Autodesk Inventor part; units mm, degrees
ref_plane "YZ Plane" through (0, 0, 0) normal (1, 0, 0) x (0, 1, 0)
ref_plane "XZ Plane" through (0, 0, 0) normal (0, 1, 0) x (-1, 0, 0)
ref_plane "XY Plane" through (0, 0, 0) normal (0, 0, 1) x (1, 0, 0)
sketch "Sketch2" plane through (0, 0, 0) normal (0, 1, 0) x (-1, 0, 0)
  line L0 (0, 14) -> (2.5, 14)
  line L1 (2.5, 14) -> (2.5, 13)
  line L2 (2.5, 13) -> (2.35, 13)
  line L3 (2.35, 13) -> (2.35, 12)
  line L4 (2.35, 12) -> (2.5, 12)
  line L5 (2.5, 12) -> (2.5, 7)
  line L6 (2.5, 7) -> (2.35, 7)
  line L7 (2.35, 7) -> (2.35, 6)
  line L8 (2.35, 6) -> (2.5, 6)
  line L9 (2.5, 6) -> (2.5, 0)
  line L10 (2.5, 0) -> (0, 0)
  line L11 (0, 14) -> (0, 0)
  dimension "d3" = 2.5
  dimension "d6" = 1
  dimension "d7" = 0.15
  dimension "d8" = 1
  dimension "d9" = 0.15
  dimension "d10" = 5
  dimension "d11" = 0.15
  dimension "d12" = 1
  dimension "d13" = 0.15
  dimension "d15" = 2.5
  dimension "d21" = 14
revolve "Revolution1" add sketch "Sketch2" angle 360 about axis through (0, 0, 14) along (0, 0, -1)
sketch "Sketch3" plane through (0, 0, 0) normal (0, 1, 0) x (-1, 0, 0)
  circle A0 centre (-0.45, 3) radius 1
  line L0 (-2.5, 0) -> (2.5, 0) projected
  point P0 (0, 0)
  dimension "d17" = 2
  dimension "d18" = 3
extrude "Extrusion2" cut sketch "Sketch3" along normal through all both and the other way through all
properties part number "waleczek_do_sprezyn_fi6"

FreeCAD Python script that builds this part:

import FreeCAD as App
import Part
import Sketcher
Q = App.Units.Quantity

doc = App.newDocument("Part")
body = doc.addObject("PartDesign::Body", "Body")

# Sketch on XZ plane
sketch1 = body.newObject("Sketcher::SketchObject", "Sketch")
sketch1.AttachmentSupport = (doc.getObject("XZ_Plane"), [""])
sketch1.MapMode = "FlatFace"
sketch1.addGeometry(Part.LineSegment(App.Vector(-2.5, 14, 0), App.Vector(0, 14, 0)), False)
sketch1.addGeometry(Part.LineSegment(App.Vector(0, 14, 0), App.Vector(0, 0, 0)), False)
sketch1.addGeometry(Part.LineSegment(App.Vector(0, 0, 0), App.Vector(-2.5, 0, 0)), False)
sketch1.addGeometry(Part.LineSegment(App.Vector(-2.5, 0, 0), App.Vector(-2.5, 6, 0)), False)
sketch1.addGeometry(Part.LineSegment(App.Vector(-2.5, 6, 0), App.Vector(-2.35, 6, 0)), False)
sketch1.addGeometry(Part.LineSegment(App.Vector(-2.35, 6, 0), App.Vector(-2.35, 7, 0)), False)
sketch1.addGeometry(Part.LineSegment(App.Vector(-2.35, 7, 0), App.Vector(-2.5, 7, 0)), False)
sketch1.addGeometry(Part.LineSegment(App.Vector(-2.5, 7, 0), App.Vector(-2.5, 12, 0)), False)
sketch1.addGeometry(Part.LineSegment(App.Vector(-2.5, 12, 0), App.Vector(-2.35, 12, 0)), False)
sketch1.addGeometry(Part.LineSegment(App.Vector(-2.35, 12, 0), App.Vector(-2.35, 13, 0)), False)
sketch1.addGeometry(Part.LineSegment(App.Vector(-2.35, 13, 0), App.Vector(-2.5, 13, 0)), False)
sketch1.addGeometry(Part.LineSegment(App.Vector(-2.5, 13, 0), App.Vector(-2.5, 14, 0)), False)
sketch1.addConstraint(Sketcher.Constraint("Coincident", 0, 2, 1, 1))
sketch1.addConstraint(Sketcher.Constraint("Coincident", 1, 2, 2, 1))
sketch1.addConstraint(Sketcher.Constraint("Coincident", 2, 2, 3, 1))
sketch1.addConstraint(Sketcher.Constraint("Coincident", 3, 2, 4, 1))
sketch1.addConstraint(Sketcher.Constraint("Coincident", 4, 2, 5, 1))
sketch1.addConstraint(Sketcher.Constraint("Coincident", 5, 2, 6, 1))
sketch1.addConstraint(Sketcher.Constraint("Coincident", 6, 2, 7, 1))
sketch1.addConstraint(Sketcher.Constraint("Coincident", 7, 2, 8, 1))
sketch1.addConstraint(Sketcher.Constraint("Coincident", 8, 2, 9, 1))
sketch1.addConstraint(Sketcher.Constraint("Coincident", 9, 2, 10, 1))
sketch1.addConstraint(Sketcher.Constraint("Coincident", 10, 2, 11, 1))
sketch1.addConstraint(Sketcher.Constraint("Coincident", 11, 2, 0, 1))
sketch1.addConstraint(Sketcher.Constraint("Horizontal", 0))
sketch1.addConstraint(Sketcher.Constraint("Vertical", 1))
sketch1.addConstraint(Sketcher.Constraint("Horizontal", 2))
sketch1.addConstraint(Sketcher.Constraint("Vertical", 3))
sketch1.addConstraint(Sketcher.Constraint("Horizontal", 4))
sketch1.addConstraint(Sketcher.Constraint("Vertical", 5))
sketch1.addConstraint(Sketcher.Constraint("Horizontal", 6))
sketch1.addConstraint(Sketcher.Constraint("Vertical", 7))
sketch1.addConstraint(Sketcher.Constraint("Horizontal", 8))
sketch1.addConstraint(Sketcher.Constraint("Vertical", 9))
sketch1.addConstraint(Sketcher.Constraint("Horizontal", 10))
sketch1.addConstraint(Sketcher.Constraint("Vertical", 11))
sketch1.addConstraint(Sketcher.Constraint("Coincident", 1, 2, -1, 1))
sketch1.addConstraint(Sketcher.Constraint("Vertical", 3, 2, 6, 2))
sketch1.addConstraint(Sketcher.Constraint("Vertical", 5, 2, 8, 2))
sketch1.addConstraint(Sketcher.Constraint("Vertical", 7, 2, 10, 2))
sketch1.addConstraint(Sketcher.Constraint("Equal", 5, 9))
sketch1.addConstraint(Sketcher.Constraint("Equal", 9, 11))
sketch1.addConstraint(Sketcher.Constraint("DistanceY", 1, 2, 1, 1, Q("14 mm")))
sketch1.addConstraint(Sketcher.Constraint("DistanceY", 5, 1, 5, 2, Q("1 mm")))
sketch1.addConstraint(Sketcher.Constraint("DistanceY", 7, 1, 7, 2, Q("5 mm")))
sketch1.addConstraint(Sketcher.Constraint("DistanceX", 0, 1, 0, 2, Q("2.5 mm")))
sketch1.addConstraint(Sketcher.Constraint("DistanceX", 4, 1, 4, 2, Q("0.15 mm")))
revolution = body.newObject("PartDesign::Revolution", "Revolution")
revolution.Profile = sketch1
revolution.ReferenceAxis = (sketch1, ["V_Axis"])
revolution.Angle = 360

# Sketch on XZ plane
sketch2 = body.newObject("Sketcher::SketchObject", "Sketch001")
sketch2.AttachmentSupport = (doc.getObject("XZ_Plane"), [""])
sketch2.MapMode = "FlatFace"
sketch2.addGeometry(Part.Circle(App.Vector(0.5, 3, 0), App.Vector(0, 0, 1), 1), False)
sketch2.addConstraint(Sketcher.Constraint("Diameter", 0, Q("2 mm")))
sketch2.addConstraint(Sketcher.Constraint("DistanceY", -1, 1, 0, 3, Q("3 mm")))
sketch2.addConstraint(Sketcher.Constraint("DistanceX", -1, 1, 0, 3, Q("0.45 mm")))
pocket1 = body.newObject("PartDesign::Pocket", "Pocket")
pocket1.Profile = sketch2
pocket1.Type = "ThroughAll"
pocket1.Midplane = True

doc.recompute()
